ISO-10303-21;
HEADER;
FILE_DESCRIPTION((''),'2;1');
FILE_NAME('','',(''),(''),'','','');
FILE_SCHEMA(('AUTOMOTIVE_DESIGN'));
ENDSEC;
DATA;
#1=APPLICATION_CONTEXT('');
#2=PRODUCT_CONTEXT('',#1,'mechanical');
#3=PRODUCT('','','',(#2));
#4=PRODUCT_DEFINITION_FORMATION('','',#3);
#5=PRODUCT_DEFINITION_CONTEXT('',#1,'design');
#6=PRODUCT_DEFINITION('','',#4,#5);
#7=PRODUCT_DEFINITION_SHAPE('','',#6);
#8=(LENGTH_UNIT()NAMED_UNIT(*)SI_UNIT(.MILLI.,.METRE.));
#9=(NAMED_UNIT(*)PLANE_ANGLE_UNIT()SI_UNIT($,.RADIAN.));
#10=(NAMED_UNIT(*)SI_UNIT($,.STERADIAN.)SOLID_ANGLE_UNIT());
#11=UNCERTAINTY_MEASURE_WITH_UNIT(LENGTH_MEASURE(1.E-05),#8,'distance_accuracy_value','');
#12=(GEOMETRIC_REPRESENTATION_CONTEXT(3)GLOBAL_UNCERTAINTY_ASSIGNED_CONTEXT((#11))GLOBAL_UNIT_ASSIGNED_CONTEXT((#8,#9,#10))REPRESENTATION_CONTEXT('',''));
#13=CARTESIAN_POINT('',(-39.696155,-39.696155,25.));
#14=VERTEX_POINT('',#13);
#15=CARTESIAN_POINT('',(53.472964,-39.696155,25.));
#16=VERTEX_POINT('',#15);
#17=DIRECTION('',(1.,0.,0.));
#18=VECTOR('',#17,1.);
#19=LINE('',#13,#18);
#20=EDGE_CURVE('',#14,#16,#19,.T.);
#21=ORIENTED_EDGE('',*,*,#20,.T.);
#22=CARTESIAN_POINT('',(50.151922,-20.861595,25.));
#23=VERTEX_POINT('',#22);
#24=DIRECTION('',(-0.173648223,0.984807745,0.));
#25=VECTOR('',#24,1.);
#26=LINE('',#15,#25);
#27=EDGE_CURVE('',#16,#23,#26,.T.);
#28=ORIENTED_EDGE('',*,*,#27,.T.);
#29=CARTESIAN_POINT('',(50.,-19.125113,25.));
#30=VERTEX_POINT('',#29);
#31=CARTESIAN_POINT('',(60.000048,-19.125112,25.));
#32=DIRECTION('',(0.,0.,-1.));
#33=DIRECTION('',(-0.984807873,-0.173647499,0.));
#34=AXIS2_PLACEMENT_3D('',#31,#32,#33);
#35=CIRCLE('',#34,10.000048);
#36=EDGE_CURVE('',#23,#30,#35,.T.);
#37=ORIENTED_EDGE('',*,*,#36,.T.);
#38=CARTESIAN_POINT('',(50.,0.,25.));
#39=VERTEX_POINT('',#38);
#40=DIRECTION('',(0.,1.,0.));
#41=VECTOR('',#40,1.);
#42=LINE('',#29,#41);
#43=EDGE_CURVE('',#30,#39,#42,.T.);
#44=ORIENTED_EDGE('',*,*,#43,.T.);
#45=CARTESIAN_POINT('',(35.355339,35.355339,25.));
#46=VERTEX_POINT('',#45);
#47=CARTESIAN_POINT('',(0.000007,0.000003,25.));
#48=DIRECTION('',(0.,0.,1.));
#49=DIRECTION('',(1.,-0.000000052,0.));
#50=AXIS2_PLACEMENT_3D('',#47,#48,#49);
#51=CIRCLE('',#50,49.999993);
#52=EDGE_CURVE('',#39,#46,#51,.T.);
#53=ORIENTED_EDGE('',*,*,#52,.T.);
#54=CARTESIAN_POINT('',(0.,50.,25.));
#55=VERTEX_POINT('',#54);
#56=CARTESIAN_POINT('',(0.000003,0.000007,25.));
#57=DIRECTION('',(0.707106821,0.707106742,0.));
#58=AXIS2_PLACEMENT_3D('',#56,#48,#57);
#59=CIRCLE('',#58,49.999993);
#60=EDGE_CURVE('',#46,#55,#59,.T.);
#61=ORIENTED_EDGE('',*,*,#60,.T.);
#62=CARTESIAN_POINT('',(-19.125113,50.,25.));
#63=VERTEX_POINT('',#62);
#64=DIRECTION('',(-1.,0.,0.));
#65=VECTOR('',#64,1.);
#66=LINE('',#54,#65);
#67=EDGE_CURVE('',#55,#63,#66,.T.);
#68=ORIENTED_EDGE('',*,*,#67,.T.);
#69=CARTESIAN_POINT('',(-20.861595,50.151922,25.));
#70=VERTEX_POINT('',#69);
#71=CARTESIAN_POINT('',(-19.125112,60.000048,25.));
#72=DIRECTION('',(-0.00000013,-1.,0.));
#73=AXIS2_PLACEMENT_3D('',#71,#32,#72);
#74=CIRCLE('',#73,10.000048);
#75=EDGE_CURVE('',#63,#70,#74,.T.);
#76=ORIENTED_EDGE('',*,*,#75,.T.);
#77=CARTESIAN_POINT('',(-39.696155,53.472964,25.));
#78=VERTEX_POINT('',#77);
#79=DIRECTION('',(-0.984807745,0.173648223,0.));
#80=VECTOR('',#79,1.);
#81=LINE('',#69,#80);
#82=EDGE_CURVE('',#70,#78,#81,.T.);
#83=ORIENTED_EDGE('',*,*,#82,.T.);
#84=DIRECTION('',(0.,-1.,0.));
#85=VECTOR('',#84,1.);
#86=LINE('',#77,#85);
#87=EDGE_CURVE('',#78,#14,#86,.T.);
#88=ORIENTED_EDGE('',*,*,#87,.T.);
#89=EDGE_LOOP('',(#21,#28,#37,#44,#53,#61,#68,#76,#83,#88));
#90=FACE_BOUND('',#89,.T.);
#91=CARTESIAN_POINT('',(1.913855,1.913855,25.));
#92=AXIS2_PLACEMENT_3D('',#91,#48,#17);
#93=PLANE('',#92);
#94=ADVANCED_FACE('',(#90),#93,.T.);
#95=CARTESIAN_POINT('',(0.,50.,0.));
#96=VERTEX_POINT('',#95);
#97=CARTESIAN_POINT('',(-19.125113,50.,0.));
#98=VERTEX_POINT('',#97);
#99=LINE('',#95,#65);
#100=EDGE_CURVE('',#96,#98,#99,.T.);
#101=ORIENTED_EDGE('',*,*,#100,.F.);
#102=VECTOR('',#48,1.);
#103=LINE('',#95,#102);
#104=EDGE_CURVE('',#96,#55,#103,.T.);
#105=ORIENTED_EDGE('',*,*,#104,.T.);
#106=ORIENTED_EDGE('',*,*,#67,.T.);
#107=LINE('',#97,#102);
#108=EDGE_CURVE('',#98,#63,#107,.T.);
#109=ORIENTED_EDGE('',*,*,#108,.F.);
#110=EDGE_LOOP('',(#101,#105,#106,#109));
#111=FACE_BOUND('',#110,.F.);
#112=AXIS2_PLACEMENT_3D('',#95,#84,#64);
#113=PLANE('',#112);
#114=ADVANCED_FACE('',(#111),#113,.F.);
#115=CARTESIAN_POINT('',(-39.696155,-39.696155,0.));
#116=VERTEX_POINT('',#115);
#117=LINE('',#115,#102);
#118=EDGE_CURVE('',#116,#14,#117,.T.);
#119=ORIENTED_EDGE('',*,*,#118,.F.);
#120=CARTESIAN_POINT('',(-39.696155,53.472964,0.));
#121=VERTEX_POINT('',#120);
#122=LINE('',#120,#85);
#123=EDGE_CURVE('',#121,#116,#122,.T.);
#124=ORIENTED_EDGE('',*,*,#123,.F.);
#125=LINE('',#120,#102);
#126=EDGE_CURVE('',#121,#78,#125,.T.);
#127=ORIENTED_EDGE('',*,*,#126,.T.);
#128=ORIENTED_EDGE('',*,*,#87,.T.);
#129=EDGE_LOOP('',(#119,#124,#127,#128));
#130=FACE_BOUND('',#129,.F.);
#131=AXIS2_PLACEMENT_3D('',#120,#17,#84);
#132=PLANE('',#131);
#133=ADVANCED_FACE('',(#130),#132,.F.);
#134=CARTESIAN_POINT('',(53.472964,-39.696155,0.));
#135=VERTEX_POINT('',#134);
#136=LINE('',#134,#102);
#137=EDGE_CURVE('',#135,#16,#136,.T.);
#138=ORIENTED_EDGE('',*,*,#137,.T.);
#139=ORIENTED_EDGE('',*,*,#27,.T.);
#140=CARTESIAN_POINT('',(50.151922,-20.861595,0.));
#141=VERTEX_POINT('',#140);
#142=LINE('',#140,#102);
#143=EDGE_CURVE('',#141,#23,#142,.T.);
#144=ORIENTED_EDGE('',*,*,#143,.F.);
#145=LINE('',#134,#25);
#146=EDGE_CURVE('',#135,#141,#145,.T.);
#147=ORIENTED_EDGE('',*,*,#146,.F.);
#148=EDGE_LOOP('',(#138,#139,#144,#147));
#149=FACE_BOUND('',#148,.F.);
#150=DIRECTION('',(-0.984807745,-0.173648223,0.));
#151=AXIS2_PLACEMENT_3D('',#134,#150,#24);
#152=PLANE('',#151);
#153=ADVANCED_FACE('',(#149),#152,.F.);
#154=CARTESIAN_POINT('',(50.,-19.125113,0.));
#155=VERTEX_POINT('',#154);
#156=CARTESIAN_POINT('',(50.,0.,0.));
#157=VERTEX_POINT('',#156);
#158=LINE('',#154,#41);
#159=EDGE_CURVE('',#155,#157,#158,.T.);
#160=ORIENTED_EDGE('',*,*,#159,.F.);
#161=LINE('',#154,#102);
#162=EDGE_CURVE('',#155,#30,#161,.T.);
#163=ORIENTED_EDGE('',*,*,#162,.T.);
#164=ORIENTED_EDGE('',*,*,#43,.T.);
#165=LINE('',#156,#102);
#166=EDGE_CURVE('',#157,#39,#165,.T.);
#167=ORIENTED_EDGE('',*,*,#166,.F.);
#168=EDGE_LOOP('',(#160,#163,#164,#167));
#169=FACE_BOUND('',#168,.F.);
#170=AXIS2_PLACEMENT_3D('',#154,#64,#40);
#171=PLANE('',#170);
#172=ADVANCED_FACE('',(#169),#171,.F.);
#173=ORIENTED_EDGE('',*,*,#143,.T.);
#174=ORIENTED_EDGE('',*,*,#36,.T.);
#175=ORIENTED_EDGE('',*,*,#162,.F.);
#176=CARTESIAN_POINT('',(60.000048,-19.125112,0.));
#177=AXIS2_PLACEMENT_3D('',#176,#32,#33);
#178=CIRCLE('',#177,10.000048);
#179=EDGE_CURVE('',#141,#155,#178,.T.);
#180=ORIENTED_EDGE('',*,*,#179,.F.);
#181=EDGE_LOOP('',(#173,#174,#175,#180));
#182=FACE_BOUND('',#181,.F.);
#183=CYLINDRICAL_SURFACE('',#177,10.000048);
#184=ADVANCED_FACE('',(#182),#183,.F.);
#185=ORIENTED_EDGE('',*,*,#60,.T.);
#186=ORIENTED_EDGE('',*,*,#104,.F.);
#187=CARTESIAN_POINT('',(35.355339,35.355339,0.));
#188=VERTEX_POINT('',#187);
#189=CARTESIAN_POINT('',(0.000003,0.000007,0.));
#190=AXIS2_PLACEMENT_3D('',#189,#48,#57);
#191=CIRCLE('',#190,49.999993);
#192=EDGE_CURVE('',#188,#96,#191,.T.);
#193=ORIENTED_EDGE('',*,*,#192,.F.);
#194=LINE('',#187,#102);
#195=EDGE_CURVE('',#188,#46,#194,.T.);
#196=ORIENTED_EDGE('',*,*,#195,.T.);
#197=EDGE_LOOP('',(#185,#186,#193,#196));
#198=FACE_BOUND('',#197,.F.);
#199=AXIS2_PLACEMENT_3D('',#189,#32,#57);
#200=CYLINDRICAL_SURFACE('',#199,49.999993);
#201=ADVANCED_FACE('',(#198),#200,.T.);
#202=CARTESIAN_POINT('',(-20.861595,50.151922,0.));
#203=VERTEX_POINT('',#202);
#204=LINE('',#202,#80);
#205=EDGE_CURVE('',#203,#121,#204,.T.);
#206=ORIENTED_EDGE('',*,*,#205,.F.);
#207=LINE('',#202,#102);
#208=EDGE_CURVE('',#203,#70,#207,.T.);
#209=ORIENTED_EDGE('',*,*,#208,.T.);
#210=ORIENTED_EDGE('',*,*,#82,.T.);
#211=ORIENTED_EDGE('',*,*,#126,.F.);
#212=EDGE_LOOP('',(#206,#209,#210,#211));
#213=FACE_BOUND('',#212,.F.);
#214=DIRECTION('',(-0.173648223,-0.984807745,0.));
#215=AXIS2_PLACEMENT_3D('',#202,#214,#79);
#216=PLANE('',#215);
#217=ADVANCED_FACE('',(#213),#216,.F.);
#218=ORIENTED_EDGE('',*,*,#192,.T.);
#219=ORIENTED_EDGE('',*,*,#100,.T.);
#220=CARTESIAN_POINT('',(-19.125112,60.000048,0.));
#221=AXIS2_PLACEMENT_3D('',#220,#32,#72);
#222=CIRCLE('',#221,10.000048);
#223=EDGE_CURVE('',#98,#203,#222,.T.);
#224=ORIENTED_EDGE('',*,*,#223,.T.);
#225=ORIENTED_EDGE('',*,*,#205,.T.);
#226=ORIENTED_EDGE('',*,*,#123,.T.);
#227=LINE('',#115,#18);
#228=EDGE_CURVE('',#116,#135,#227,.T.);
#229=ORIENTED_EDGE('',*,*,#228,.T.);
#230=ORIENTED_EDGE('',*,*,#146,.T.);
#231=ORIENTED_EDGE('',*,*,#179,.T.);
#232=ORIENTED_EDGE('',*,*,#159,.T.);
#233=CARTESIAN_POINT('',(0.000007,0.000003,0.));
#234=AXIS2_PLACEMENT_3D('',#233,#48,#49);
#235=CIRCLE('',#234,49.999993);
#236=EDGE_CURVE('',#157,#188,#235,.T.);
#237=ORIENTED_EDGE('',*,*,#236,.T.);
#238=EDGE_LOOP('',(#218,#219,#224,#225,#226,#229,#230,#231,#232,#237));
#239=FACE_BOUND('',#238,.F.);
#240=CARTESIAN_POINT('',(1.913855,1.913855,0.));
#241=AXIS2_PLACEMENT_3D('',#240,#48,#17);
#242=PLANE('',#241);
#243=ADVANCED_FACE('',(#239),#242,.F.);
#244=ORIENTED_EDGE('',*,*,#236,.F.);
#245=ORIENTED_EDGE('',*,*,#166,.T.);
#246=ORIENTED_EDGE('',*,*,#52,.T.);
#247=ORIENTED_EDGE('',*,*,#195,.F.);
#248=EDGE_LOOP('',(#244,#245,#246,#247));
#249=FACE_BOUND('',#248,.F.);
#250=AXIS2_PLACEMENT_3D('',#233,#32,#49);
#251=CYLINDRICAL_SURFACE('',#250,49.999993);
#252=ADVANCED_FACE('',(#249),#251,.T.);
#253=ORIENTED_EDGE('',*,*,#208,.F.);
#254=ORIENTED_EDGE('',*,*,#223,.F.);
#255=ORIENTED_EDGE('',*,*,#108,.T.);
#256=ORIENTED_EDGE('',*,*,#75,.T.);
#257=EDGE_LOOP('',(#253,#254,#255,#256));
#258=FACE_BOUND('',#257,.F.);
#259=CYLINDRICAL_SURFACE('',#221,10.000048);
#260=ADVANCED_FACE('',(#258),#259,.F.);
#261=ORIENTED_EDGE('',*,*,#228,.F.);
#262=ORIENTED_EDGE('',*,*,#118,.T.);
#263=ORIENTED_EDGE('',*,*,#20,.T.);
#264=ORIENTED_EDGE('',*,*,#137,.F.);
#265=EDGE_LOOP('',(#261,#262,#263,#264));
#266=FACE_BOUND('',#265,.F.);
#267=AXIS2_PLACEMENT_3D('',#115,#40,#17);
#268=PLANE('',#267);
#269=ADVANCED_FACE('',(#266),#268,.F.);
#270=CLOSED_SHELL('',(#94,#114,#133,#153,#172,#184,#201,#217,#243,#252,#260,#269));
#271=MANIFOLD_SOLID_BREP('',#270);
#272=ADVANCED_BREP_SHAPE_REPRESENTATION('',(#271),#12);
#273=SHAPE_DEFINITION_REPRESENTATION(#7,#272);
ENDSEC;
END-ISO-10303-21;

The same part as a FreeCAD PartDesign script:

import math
import FreeCAD as App
import Part
import Sketcher

V = App.Vector
Q = App.Units.Quantity

doc = App.newDocument("Part")
body = doc.addObject("PartDesign::Body", "Body")

sketch1 = body.newObject("Sketcher::SketchObject", "Sketch")
sketch1.AttachmentSupport = (doc.getObject("XY_Plane"), [""])
sketch1.MapMode = "FlatFace"
sketch1.addGeometry([
    Part.LineSegment(V(50, -19.125113, 0), V(50, 0, 0)),
    Part.ArcOfCircle(Part.Circle(V(0.000007, 0.000003, 0), V(0, 0, 1), 49.999993), math.radians(-0.000003), math.radians(45.000003)),
    Part.ArcOfCircle(Part.Circle(V(0.000003, 0.000007, 0), V(0, 0, 1), 49.999993), math.radians(44.999997), math.radians(90.000003)),
    Part.LineSegment(V(0, 50, 0), V(-19.125113, 50, 0)),
    Part.ArcOfCircle(Part.Circle(V(-19.125112, 60.000048, 0), V(0, 0, 1), 10.000048), math.radians(-99.999961), math.radians(-90.000007)),
    Part.LineSegment(V(-20.861595, 50.151922, 0), V(-39.696155, 53.472964, 0)),
    Part.LineSegment(V(-39.696155, 53.472964, 0), V(-39.696155, -39.696155, 0)),
    Part.LineSegment(V(-39.696155, -39.696155, 0), V(53.472964, -39.696155, 0)),
    Part.LineSegment(V(53.472964, -39.696155, 0), V(50.151922, -20.861595, 0)),
    Part.ArcOfCircle(Part.Circle(V(60.000048, -19.125112, 0), V(0, 0, 1), 10.000048), math.radians(-179.999993), math.radians(-170.000039)),
], False)
sketch1.addConstraint([
    Sketcher.Constraint("Tangent", 0, 2, 1, 1),
    Sketcher.Constraint("Tangent", 1, 2, 2, 1),
    Sketcher.Constraint("Tangent", 2, 2, 3, 1),
    Sketcher.Constraint("Tangent", 3, 2, 4, 2),
    Sketcher.Constraint("Tangent", 4, 1, 5, 1),
    Sketcher.Constraint("Coincident", 5, 2, 6, 1),
    Sketcher.Constraint("Coincident", 6, 2, 7, 1),
    Sketcher.Constraint("Coincident", 7, 2, 8, 1),
    Sketcher.Constraint("Tangent", 8, 2, 9, 2),
    Sketcher.Constraint("Tangent", 9, 1, 0, 1),
    Sketcher.Constraint("Vertical", 0),
    Sketcher.Constraint("Horizontal", 3),
    Sketcher.Constraint("Vertical", 6),
    Sketcher.Constraint("Horizontal", 7),
    Sketcher.Constraint("Coincident", 1, 3, -1, 1),
    Sketcher.Constraint("Equal", 1, 2),
    Sketcher.Constraint("Equal", 4, 9),
    Sketcher.Constraint("Equal", 3, 0),
    Sketcher.Constraint("Equal", 7, 6),
    Sketcher.Constraint("Equal", 5, 8),
    Sketcher.Constraint("Angle", 5, Q("169.999997 deg")),
    Sketcher.Constraint("DistanceX", -1, 1, 0, 2, 50.0),
    Sketcher.Constraint("Radius", 4, 10.000048),
    Sketcher.Constraint("DistanceX", 7, 1, 7, 2, 93.169119),
    Sketcher.Constraint("DistanceX", 4, 1, 1, 3, 20.861602),
    Sketcher.Constraint("DistanceX", -1, 1, 1, 2, 35.355339),
])
pad1 = body.newObject("PartDesign::Pad", "Pad")
pad1.Profile = sketch1
pad1.Length = 25

doc.recompute()
